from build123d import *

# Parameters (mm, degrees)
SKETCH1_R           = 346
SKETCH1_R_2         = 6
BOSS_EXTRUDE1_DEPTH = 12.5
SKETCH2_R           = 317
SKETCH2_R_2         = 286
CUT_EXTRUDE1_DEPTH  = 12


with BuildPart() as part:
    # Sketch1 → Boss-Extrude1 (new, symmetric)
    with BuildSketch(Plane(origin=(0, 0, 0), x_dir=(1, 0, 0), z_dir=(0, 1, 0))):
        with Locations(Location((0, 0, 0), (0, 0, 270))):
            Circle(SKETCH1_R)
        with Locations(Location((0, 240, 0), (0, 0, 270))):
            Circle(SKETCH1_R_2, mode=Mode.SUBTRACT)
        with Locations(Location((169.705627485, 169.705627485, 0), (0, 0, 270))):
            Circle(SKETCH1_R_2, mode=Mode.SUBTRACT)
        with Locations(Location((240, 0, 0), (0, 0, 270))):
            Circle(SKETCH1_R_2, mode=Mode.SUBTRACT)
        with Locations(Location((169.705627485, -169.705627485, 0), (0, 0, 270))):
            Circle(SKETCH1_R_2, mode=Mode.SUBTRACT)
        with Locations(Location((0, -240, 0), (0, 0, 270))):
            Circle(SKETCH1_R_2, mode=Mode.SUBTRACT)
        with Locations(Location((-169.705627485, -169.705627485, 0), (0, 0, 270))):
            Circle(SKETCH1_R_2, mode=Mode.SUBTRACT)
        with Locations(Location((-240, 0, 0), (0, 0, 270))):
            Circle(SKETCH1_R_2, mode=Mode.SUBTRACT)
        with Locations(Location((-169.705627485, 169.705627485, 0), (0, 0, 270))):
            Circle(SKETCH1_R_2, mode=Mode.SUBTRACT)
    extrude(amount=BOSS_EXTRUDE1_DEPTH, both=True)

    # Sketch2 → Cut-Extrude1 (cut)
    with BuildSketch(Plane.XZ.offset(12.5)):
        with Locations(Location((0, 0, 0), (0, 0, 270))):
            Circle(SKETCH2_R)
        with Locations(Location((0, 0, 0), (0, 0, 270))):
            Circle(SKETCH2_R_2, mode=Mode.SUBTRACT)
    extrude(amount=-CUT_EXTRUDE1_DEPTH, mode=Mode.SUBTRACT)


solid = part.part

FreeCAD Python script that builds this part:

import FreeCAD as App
import Part
import Sketcher

doc = App.newDocument("Part")
params = doc.addObject("Spreadsheet::Sheet", "Params")
for row, (alias, value) in enumerate([
    ("sketch1_diameter", "692 mm"),
    ("sketch1_diameter2", "12 mm"),
    ("pad1_length", "25 mm"),
    ("sketch2_diameter", "634 mm"),
    ("sketch2_diameter2", "572 mm"),
    ("pocket1_length", "12 mm"),
], start=1):
    params.set(f"A{row}", alias)
    params.set(f"B{row}", "=" + value)
    params.setAlias(f"B{row}", alias)

body = doc.addObject("PartDesign::Body", "Body")

# Sketch on XZ plane
sketch1 = doc.addObject("Sketcher::SketchObject", "Sketch")
body.addObject(sketch1)
sketch1.AttachmentSupport = (doc.XZ_Plane, [""])
sketch1.MapMode = "FlatFace"
sketch1.addGeometry([
    Part.Circle(App.Vector(0, 0, 0), App.Vector(0, 0, 1), 346),  # 0
    Part.Circle(App.Vector(-169.705627, -169.705627, 0), App.Vector(0, 0, 1), 6),  # 1
    Part.Circle(App.Vector(-240, 0, 0), App.Vector(0, 0, 1), 6),  # 2
    Part.Circle(App.Vector(-169.705627, 169.705627, 0), App.Vector(0, 0, 1), 6),  # 3
    Part.Circle(App.Vector(0, -240, 0), App.Vector(0, 0, 1), 6),  # 4
    Part.Circle(App.Vector(169.705627, -169.705627, 0), App.Vector(0, 0, 1), 6),  # 5
    Part.Circle(App.Vector(240, 0, 0), App.Vector(0, 0, 1), 6),  # 6
    Part.Circle(App.Vector(0, 240, 0), App.Vector(0, 0, 1), 6),  # 7
    Part.Circle(App.Vector(169.705627, 169.705627, 0), App.Vector(0, 0, 1), 6),  # 8
], False)
sketch1.addConstraint([
    Sketcher.Constraint("Coincident", 0, 3, -1, 1),
    Sketcher.Constraint("Equal", 1, 2),
    Sketcher.Constraint("Equal", 2, 3),
    Sketcher.Constraint("Equal", 3, 4),
    Sketcher.Constraint("Equal", 4, 5),
    Sketcher.Constraint("Equal", 5, 6),
    Sketcher.Constraint("Equal", 6, 7),
    Sketcher.Constraint("Equal", 7, 8),
    Sketcher.Constraint("Symmetric", 3, 3, 5, 3, -1, 1),
    Sketcher.Constraint("Symmetric", 2, 3, 6, 3, -1, 1),
    Sketcher.Constraint("Symmetric", 4, 3, 7, 3, -1, 1),
    Sketcher.Constraint("Symmetric", 1, 3, 8, 3, -1, 1),
    Sketcher.Constraint("Symmetric", 1, 3, 5, 3, -2),
    Sketcher.Constraint("PointOnObject", 2, 3, -1),
    Sketcher.Constraint("PointOnObject", 4, 3, -2),
    Sketcher.Constraint("Diameter", 0, 692.0),
    Sketcher.Constraint("Diameter", 1, 12.0),
    Sketcher.Constraint("DistanceX", 2, 3, -1, 1, 240.0),
    Sketcher.Constraint("DistanceY", 4, 3, -1, 1, 240.0),
    Sketcher.Constraint("DistanceX", 1, 3, -1, 1, 169.705627),
    Sketcher.Constraint("DistanceY", 1, 3, -1, 1, 169.705627),
])
sketch1.setExpression("Constraints[15]", "Params.sketch1_diameter")
sketch1.setExpression("Constraints[16]", "Params.sketch1_diameter2")
pad1 = doc.addObject("PartDesign::Pad", "Pad")
body.addObject(pad1)
pad1.Profile = sketch1
pad1.setExpression("Length", "Params.pad1_length")
pad1.Midplane = True

# Sketch on XZ plane
sketch2 = doc.addObject("Sketcher::SketchObject", "Sketch001")
body.addObject(sketch2)
sketch2.AttachmentSupport = (doc.XZ_Plane, [""])
sketch2.MapMode = "FlatFace"
sketch2.AttachmentOffset = App.Placement(App.Vector(0, 0, 12.5), App.Rotation())
sketch2.addGeometry([
    Part.Circle(App.Vector(0, 0, 0), App.Vector(0, 0, 1), 317),
    Part.Circle(App.Vector(0, 0, 0), App.Vector(0, 0, 1), 286),
], False)
sketch2.addConstraint([
    Sketcher.Constraint("Coincident", 0, 3, -1, 1),
    Sketcher.Constraint("Coincident", 1, 3, -1, 1),
    Sketcher.Constraint("Diameter", 0, 634.0),
    Sketcher.Constraint("Diameter", 1, 572.0),
])
sketch2.setExpression("Constraints[2]", "Params.sketch2_diameter")
sketch2.setExpression("Constraints[3]", "Params.sketch2_diameter2")
pocket1 = doc.addObject("PartDesign::Pocket", "Pocket")
body.addObject(pocket1)
pocket1.Profile = sketch2
pocket1.setExpression("Length", "Params.pocket1_length")

doc.recompute()
